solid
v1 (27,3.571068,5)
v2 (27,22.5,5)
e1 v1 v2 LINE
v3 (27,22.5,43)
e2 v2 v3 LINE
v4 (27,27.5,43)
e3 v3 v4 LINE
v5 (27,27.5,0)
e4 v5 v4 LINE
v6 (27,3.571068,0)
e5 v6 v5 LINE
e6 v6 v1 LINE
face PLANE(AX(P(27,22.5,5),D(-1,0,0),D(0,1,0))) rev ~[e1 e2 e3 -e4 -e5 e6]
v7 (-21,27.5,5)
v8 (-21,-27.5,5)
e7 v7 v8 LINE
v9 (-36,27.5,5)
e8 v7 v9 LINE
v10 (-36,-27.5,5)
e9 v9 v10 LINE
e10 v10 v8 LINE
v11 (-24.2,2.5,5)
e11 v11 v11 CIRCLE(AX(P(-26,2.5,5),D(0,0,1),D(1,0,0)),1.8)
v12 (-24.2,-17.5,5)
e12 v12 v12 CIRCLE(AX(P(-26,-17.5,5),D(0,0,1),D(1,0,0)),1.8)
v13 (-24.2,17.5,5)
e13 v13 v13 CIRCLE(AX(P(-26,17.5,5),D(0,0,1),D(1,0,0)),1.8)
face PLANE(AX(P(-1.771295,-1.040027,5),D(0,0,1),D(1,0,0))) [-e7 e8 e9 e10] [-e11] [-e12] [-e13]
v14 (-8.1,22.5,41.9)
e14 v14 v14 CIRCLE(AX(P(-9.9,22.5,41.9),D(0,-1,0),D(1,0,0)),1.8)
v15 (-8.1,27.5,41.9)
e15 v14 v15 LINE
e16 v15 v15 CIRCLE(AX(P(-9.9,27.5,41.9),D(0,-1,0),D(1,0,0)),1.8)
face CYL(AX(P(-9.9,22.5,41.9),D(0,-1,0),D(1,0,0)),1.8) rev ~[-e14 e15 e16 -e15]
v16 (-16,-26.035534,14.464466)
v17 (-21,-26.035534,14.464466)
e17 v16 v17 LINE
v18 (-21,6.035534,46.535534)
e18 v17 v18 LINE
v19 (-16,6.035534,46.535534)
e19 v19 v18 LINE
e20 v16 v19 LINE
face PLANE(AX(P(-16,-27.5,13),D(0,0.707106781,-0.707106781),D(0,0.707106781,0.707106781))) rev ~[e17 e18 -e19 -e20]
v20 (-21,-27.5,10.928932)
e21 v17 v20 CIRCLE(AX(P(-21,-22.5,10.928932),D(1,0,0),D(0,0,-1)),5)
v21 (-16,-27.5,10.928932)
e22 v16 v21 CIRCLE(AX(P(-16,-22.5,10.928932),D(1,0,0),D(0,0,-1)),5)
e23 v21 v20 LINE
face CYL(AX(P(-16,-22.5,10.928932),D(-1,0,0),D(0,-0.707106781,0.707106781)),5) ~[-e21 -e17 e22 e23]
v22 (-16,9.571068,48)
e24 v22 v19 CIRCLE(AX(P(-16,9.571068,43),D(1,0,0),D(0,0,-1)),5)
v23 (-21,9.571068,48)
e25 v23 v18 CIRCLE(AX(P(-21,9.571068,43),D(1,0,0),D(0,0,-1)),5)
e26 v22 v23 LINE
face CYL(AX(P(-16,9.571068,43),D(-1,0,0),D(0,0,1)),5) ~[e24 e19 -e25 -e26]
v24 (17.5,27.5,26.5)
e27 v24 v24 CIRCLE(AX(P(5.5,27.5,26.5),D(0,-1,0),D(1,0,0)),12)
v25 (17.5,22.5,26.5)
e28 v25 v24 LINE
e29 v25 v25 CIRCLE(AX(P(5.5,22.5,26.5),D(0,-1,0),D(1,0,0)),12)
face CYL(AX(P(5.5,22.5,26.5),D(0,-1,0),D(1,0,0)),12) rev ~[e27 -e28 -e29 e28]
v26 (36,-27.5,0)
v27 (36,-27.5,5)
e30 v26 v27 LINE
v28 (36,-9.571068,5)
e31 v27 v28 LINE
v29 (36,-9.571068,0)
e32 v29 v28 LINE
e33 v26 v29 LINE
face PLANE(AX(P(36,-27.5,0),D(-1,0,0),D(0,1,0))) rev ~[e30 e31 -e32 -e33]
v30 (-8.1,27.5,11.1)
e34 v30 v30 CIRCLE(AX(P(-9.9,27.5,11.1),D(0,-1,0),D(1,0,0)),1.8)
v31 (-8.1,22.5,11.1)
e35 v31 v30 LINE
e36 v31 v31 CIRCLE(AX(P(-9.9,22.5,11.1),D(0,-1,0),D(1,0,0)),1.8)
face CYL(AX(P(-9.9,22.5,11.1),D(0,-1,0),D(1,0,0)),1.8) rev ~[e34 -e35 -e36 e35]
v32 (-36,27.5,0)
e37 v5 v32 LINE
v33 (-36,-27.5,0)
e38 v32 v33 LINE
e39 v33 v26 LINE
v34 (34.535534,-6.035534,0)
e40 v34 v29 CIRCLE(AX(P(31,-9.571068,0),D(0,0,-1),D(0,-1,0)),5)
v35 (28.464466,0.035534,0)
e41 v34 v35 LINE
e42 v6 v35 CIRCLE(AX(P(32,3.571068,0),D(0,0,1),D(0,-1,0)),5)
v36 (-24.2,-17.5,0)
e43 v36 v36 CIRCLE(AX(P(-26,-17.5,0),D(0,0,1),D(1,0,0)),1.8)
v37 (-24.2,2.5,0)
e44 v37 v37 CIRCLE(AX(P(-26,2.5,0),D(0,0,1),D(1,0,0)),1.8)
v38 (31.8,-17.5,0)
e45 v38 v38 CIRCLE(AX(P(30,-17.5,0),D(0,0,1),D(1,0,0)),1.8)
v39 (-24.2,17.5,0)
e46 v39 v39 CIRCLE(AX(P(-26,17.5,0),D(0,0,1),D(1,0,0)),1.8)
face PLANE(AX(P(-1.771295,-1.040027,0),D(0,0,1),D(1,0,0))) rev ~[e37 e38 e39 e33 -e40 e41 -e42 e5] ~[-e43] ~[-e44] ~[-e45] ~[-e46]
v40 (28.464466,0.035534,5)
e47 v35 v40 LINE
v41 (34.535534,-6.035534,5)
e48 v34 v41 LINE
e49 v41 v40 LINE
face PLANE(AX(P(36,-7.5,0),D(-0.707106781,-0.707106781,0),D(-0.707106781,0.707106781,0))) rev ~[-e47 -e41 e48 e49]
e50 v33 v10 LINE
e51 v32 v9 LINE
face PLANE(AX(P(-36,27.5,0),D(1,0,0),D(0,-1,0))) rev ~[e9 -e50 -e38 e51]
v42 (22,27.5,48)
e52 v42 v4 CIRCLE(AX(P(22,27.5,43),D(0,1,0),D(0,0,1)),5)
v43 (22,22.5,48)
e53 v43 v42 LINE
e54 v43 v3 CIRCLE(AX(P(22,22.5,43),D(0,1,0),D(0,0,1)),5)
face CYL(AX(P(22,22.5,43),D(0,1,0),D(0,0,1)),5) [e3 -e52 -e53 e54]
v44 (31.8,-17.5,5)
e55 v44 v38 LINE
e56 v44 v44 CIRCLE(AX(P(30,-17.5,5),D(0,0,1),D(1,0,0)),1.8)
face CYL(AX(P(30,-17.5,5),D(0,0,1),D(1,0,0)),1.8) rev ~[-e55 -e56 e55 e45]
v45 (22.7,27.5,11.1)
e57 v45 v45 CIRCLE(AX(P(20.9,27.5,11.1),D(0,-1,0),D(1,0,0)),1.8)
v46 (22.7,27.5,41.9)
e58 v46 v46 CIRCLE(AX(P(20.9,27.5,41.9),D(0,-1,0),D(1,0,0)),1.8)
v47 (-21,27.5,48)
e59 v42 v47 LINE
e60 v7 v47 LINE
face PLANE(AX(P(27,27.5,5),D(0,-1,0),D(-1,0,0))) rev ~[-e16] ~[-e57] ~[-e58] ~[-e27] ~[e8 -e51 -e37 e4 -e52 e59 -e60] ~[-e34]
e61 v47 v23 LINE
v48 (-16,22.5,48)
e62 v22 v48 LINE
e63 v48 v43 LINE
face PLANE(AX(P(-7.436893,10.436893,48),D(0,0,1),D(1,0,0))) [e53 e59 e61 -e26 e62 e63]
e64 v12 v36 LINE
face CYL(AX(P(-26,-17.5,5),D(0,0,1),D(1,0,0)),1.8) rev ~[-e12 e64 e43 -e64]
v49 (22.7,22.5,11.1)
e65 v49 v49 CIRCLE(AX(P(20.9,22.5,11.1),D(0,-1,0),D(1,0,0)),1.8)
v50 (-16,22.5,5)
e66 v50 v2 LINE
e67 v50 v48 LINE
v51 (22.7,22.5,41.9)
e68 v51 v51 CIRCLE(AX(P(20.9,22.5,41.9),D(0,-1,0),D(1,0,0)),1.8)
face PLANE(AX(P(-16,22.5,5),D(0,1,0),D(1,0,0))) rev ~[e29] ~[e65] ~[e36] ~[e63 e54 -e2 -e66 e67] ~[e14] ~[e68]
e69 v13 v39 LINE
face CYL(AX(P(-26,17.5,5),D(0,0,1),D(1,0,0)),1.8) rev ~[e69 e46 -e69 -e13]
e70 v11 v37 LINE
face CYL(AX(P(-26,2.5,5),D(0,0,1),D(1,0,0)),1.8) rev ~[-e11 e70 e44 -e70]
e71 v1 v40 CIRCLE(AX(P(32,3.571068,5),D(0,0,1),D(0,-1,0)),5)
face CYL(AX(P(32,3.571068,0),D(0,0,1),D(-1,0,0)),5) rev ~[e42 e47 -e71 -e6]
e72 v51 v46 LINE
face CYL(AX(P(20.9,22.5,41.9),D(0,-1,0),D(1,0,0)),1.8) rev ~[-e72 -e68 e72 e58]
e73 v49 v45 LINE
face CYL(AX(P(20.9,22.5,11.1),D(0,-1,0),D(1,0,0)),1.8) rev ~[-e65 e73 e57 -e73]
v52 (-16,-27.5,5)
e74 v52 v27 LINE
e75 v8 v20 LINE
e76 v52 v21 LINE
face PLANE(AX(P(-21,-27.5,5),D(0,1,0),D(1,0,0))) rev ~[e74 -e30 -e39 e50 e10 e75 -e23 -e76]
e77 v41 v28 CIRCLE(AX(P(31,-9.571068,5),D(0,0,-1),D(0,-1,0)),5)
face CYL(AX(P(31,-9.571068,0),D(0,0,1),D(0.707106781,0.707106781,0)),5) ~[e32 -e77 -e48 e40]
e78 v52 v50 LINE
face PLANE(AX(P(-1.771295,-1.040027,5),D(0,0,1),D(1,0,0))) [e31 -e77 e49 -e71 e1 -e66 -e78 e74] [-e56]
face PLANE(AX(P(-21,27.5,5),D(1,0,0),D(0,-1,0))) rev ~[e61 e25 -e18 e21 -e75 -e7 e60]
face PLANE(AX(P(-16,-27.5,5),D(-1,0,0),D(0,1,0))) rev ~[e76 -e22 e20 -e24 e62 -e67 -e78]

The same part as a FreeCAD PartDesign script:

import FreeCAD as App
import Part
import Sketcher

V = App.Vector


def edges_at(feature, points):
    """Names of the edges that pass closest to the given points."""
    edges = feature.Shape.Edges
    near = lambda p: min(range(len(edges)), key=lambda i: edges[i].distToShape(Part.Vertex(*p))[0])
    return sorted({f"Edge{near(p) + 1}" for p in points})

doc = App.newDocument("Part")
params = doc.addObject("Spreadsheet::Sheet", "Params")
for row, (alias, value) in enumerate([
    ("sketch1_width", "72 mm"),
    ("sketch1_width2", "63 mm"),
    ("sketch1_height", "55 mm"),
    ("sketch1_height2", "20 mm"),
    ("sketch1_height3", "26 mm"),
    ("pad1_length", "5 mm"),
    ("sketch2_diameter", "3.6 mm"),
    ("pocket1_length", "25 mm"),
    ("sketch3_width", "43 mm"),
    ("sketch3_width2", "48 mm"),
    ("sketch3_height", "55 mm"),
    ("pad2_length", "43 mm"),
    ("sketch4_width", "35 mm"),
    ("pocket2_length", "25 mm"),
    ("sketch5_diameter", "24 mm"),
    ("sketch5_diameter2", "3.6 mm"),
    ("pocket3_length", "25 mm"),
    ("fillet_radius", "5 mm"),
], start=1):
    params.set(f"A{row}", alias)
    params.set(f"B{row}", "=" + value)
    params.setAlias(f"B{row}", alias)

body = doc.addObject("PartDesign::Body", "Body")

# Sketch on XY plane
sketch1 = body.newObject("Sketcher::SketchObject", "Sketch")
sketch1.AttachmentSupport = (doc.getObject("XY_Plane"), [""])
sketch1.MapMode = "FlatFace"
sketch1.addGeometry(Part.LineSegment(V(-36, 27.5, 0), V(-36, -27.5, 0)), False)
sketch1.addGeometry(Part.LineSegment(V(-36, -27.5, 0), V(36, -27.5, 0)), False)
sketch1.addGeometry(Part.LineSegment(V(36, -27.5, 0), V(36, -7.5, 0)), False)
sketch1.addGeometry(Part.LineSegment(V(36, -7.5, 0), V(27, 1.5, 0)), False)
sketch1.addGeometry(Part.LineSegment(V(27, 1.5, 0), V(27, 27.5, 0)), False)
sketch1.addGeometry(Part.LineSegment(V(27, 27.5, 0), V(-36, 27.5, 0)), False)
sketch1.addConstraint(Sketcher.Constraint("Coincident", 0, 2, 1, 1))
sketch1.addConstraint(Sketcher.Constraint("Coincident", 1, 2, 2, 1))
sketch1.addConstraint(Sketcher.Constraint("Coincident", 2, 2, 3, 1))
sketch1.addConstraint(Sketcher.Constraint("Coincident", 3, 2, 4, 1))
sketch1.addConstraint(Sketcher.Constraint("Coincident", 4, 2, 5, 1))
sketch1.addConstraint(Sketcher.Constraint("Coincident", 5, 2, 0, 1))
sketch1.addConstraint(Sketcher.Constraint("Vertical", 0))
sketch1.addConstraint(Sketcher.Constraint("Horizontal", 1))
sketch1.addConstraint(Sketcher.Constraint("Vertical", 2))
sketch1.addConstraint(Sketcher.Constraint("Vertical", 4))
sketch1.addConstraint(Sketcher.Constraint("Horizontal", 5))
sketch1.addConstraint(Sketcher.Constraint("Symmetric", 1, 2, 5, 2, -1, 1))
sketch1.addConstraint(Sketcher.Constraint("DistanceX", 1, 1, 1, 2, 72.0))
sketch1.addConstraint(Sketcher.Constraint("DistanceX", 5, 2, 5, 1, 63.0))
sketch1.addConstraint(Sketcher.Constraint("DistanceY", 0, 2, 0, 1, 55.0))
sketch1.addConstraint(Sketcher.Constraint("DistanceY", 2, 1, 2, 2, 20.0))
sketch1.addConstraint(Sketcher.Constraint("DistanceY", 4, 1, 4, 2, 26.0))
sketch1.setExpression("Constraints[12]", "Params.sketch1_width")
sketch1.setExpression("Constraints[13]", "Params.sketch1_width2")
sketch1.setExpression("Constraints[14]", "Params.sketch1_height")
sketch1.setExpression("Constraints[15]", "Params.sketch1_height2")
sketch1.setExpression("Constraints[16]", "Params.sketch1_height3")
pad1 = body.newObject("PartDesign::Pad", "Pad")
pad1.Profile = sketch1
pad1.setExpression("Length", "Params.pad1_length")

# Sketch on XY plane
sketch2 = body.newObject("Sketcher::SketchObject", "Sketch001")
sketch2.AttachmentSupport = (doc.getObject("XY_Plane"), [""])
sketch2.MapMode = "FlatFace"
sketch2.AttachmentOffset = App.Placement(V(0, 0, 5), App.Rotation())
sketch2.addGeometry(Part.Circle(V(-26, 17.5, 0), V(0, 0, 1), 1.8), False)
sketch2.addGeometry(Part.Circle(V(-26, 2.5, 0), V(0, 0, 1), 1.8), False)
sketch2.addGeometry(Part.Circle(V(-26, -17.5, 0), V(0, 0, 1), 1.8), False)
sketch2.addGeometry(Part.Circle(V(30, -17.5, 0), V(0, 0, 1), 1.8), False)
sketch2.addConstraint(Sketcher.Constraint("Equal", 0, 1))
sketch2.addConstraint(Sketcher.Constraint("Equal", 1, 2))
sketch2.addConstraint(Sketcher.Constraint("Equal", 2, 3))
sketch2.addConstraint(Sketcher.Constraint("Symmetric", 0, 3, 2, 3, -1))
sketch2.addConstraint(Sketcher.Constraint("Horizontal", 2, 3, 3, 3))
sketch2.addConstraint(Sketcher.Constraint("Vertical", 0, 3, 1, 3))
sketch2.addConstraint(Sketcher.Constraint("Diameter", 0, 3.6))
sketch2.addConstraint(Sketcher.Constraint("DistanceX", 0, 3, -1, 1, 26.0))
sketch2.addConstraint(Sketcher.Constraint("DistanceX", -1, 1, 3, 3, 30.0))
sketch2.addConstraint(Sketcher.Constraint("DistanceY", 1, 3, 0, 3, 15.0))
sketch2.addConstraint(Sketcher.Constraint("DistanceY", 2, 3, 1, 3, 20.0))
sketch2.setExpression("Constraints[6]", "Params.sketch2_diameter")
pocket1 = body.newObject("PartDesign::Pocket", "Pocket")
pocket1.Profile = sketch2
pocket1.setExpression("Length", "Params.pocket1_length")

# Sketch on XY plane
sketch3 = body.newObject("Sketcher::SketchObject", "Sketch002")
sketch3.AttachmentSupport = (doc.getObject("XY_Plane"), [""])
sketch3.MapMode = "FlatFace"
sketch3.AttachmentOffset = App.Placement(V(0, 0, 5), App.Rotation())
sketch3.addGeometry(Part.LineSegment(V(-16, 22.5, 0), V(27, 22.5, 0)), False)
sketch3.addGeometry(Part.LineSegment(V(27, 22.5, 0), V(27, 27.5, 0)), False)
sketch3.addGeometry(Part.LineSegment(V(27, 27.5, 0), V(-21, 27.5, 0)), False)
sketch3.addGeometry(Part.LineSegment(V(-21, 27.5, 0), V(-21, -27.5, 0)), False)
sketch3.addGeometry(Part.LineSegment(V(-21, -27.5, 0), V(-16, -27.5, 0)), False)
sketch3.addGeometry(Part.LineSegment(V(-16, -27.5, 0), V(-16, 22.5, 0)), False)
sketch3.addConstraint(Sketcher.Constraint("Coincident", 0, 2, 1, 1))
sketch3.addConstraint(Sketcher.Constraint("Coincident", 1, 2, 2, 1))
sketch3.addConstraint(Sketcher.Constraint("Coincident", 2, 2, 3, 1))
sketch3.addConstraint(Sketcher.Constraint("Coincident", 3, 2, 4, 1))
sketch3.addConstraint(Sketcher.Constraint("Coincident", 4, 2, 5, 1))
sketch3.addConstraint(Sketcher.Constraint("Coincident", 5, 2, 0, 1))
sketch3.addConstraint(Sketcher.Constraint("Horizontal", 0))
sketch3.addConstraint(Sketcher.Constraint("Vertical", 1))
sketch3.addConstraint(Sketcher.Constraint("Horizontal", 2))
sketch3.addConstraint(Sketcher.Constraint("Vertical", 3))
sketch3.addConstraint(Sketcher.Constraint("Horizontal", 4))
sketch3.addConstraint(Sketcher.Constraint("Vertical", 5))
sketch3.addConstraint(Sketcher.Constraint("Equal", 4, 1))
sketch3.addConstraint(Sketcher.Constraint("DistanceX", 0, 1, 0, 2, 43.0))
sketch3.addConstraint(Sketcher.Constraint("DistanceX", 2, 2, 2, 1, 48.0))
sketch3.addConstraint(Sketcher.Constraint("DistanceY", 3, 2, 3, 1, 55.0))
sketch3.addConstraint(Sketcher.Constraint("DistanceX", -1, 1, 0, 2, 27.0))
sketch3.addConstraint(Sketcher.Constraint("DistanceY", -1, 1, 0, 2, 22.5))
sketch3.setExpression("Constraints[13]", "Params.sketch3_width")
sketch3.setExpression("Constraints[14]", "Params.sketch3_width2")
sketch3.setExpression("Constraints[15]", "Params.sketch3_height")
pad2 = body.newObject("PartDesign::Pad", "Pad001")
pad2.Profile = sketch3
pad2.setExpression("Length", "Params.pad2_length")

# Sketch on YZ plane
sketch4 = body.newObject("Sketcher::SketchObject", "Sketch003")
sketch4.AttachmentSupport = (doc.getObject("YZ_Plane"), [""])
sketch4.MapMode = "FlatFace"
sketch4.AttachmentOffset = App.Placement(V(0, 0, -16), App.Rotation())
sketch4.addGeometry(Part.LineSegment(V(-27.5, 13, 0), V(7.5, 48, 0)), False)
sketch4.addGeometry(Part.LineSegment(V(7.5, 48, 0), V(-27.5, 48, 0)), False)
sketch4.addGeometry(Part.LineSegment(V(-27.5, 48, 0), V(-27.5, 13, 0)), False)
sketch4.addConstraint(Sketcher.Constraint("Coincident", 0, 2, 1, 1))
sketch4.addConstraint(Sketcher.Constraint("Coincident", 1, 2, 2, 1))
sketch4.addConstraint(Sketcher.Constraint("Coincident", 2, 2, 0, 1))
sketch4.addConstraint(Sketcher.Constraint("Horizontal", 1))
sketch4.addConstraint(Sketcher.Constraint("Vertical", 2))
sketch4.addConstraint(Sketcher.Constraint("Equal", 1, 2))
sketch4.addConstraint(Sketcher.Constraint("DistanceX", 1, 2, 1, 1, 35.0))
sketch4.addConstraint(Sketcher.Constraint("DistanceY", -1, 1, 0, 2, 48.0))
sketch4.addConstraint(Sketcher.Constraint("DistanceX", -1, 1, 0, 2, 7.5))
sketch4.setExpression("Constraints[6]", "Params.sketch4_width")
pocket2 = body.newObject("PartDesign::Pocket", "Pocket001")
pocket2.Profile = sketch4
pocket2.setExpression("Length", "Params.pocket2_length")

# Sketch on XZ plane
sketch5 = body.newObject("Sketcher::SketchObject", "Sketch004")
sketch5.AttachmentSupport = (doc.getObject("XZ_Plane"), [""])
sketch5.MapMode = "FlatFace"
sketch5.AttachmentOffset = App.Placement(V(0, 0, -22.5), App.Rotation())
sketch5.addGeometry(Part.Circle(V(5.5, 26.5, 0), V(0, 0, 1), 12), False)
sketch5.addGeometry(Part.Circle(V(-9.9, 41.9, 0), V(0, 0, 1), 1.8), False)
sketch5.addGeometry(Part.Circle(V(-9.9, 11.1, 0), V(0, 0, 1), 1.8), False)
sketch5.addGeometry(Part.Circle(V(20.9, 41.9, 0), V(0, 0, 1), 1.8), False)
sketch5.addGeometry(Part.Circle(V(20.9, 11.1, 0), V(0, 0, 1), 1.8), False)
sketch5.addConstraint(Sketcher.Constraint("Equal", 1, 2))
sketch5.addConstraint(Sketcher.Constraint("Equal", 2, 3))
sketch5.addConstraint(Sketcher.Constraint("Equal", 3, 4))
sketch5.addConstraint(Sketcher.Constraint("Horizontal", 1, 3, 3, 3))
sketch5.addConstraint(Sketcher.Constraint("Horizontal", 2, 3, 4, 3))
sketch5.addConstraint(Sketcher.Constraint("Vertical", 1, 3, 2, 3))
sketch5.addConstraint(Sketcher.Constraint("Vertical", 3, 3, 4, 3))
sketch5.addConstraint(Sketcher.Constraint("Diameter", 0, 24.0))
sketch5.addConstraint(Sketcher.Constraint("Diameter", 1, 3.6))
sketch5.addConstraint(Sketcher.Constraint("DistanceX", -1, 1, 0, 3, 5.5))
sketch5.addConstraint(Sketcher.Constraint("DistanceY", -1, 1, 0, 3, 26.5))
sketch5.addConstraint(Sketcher.Constraint("DistanceX", 1, 3, -1, 1, 9.9))
sketch5.addConstraint(Sketcher.Constraint("DistanceY", -1, 1, 1, 3, 41.9))
sketch5.addConstraint(Sketcher.Constraint("DistanceY", -1, 1, 2, 3, 11.1))
sketch5.addConstraint(Sketcher.Constraint("DistanceX", -1, 1, 3, 3, 20.9))
sketch5.setExpression("Constraints[7]", "Params.sketch5_diameter")
sketch5.setExpression("Constraints[8]", "Params.sketch5_diameter2")
pocket3 = body.newObject("PartDesign::Pocket", "Pocket002")
pocket3.Profile = sketch5
pocket3.setExpression("Length", "Params.pocket3_length")
doc.recompute()

fillet = body.newObject("PartDesign::Fillet", "Fillet")
fillet.Base = (pocket3, edges_at(pocket3, [
    (-18.5, 7.5, 48),
    (-18.5, -27.5, 13),
    (27, 25, 48),
    (36, -7.5, 2.5),
    (27, 1.5, 2.5),
]))
fillet.setExpression("Radius", "Params.fillet_radius")

doc.recompute()
